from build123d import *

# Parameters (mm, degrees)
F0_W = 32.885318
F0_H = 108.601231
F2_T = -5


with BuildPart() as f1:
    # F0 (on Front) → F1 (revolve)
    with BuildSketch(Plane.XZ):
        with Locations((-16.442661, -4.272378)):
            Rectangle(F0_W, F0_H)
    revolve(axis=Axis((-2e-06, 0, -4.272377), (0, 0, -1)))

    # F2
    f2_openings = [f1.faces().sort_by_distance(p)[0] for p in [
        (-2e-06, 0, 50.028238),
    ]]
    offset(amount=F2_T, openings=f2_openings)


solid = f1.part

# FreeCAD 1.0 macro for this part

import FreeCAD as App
import Part
import Sketcher

V = App.Vector


def faces_at(feature, points):
    """Names of the faces that lie closest to the given points."""
    faces = feature.Shape.Faces
    near = lambda p: min(range(len(faces)), key=lambda i: faces[i].distToShape(Part.Vertex(*p))[0])
    return sorted({f"Face{near(p) + 1}" for p in points})


def add_polygon(sketch, points):
    """Adds a closed chain of lines whose ends are joined by coincident constraints."""
    first, n = sketch.GeometryCount, len(points)
    for a, b in zip(points, points[1:] + points[:1]):
        sketch.addGeometry(Part.LineSegment(App.Vector(*a, 0), App.Vector(*b, 0)), False)
    for i in range(n):
        sketch.addConstraint(Sketcher.Constraint("Coincident", first + i, 2, first + (i + 1) % n, 1))

doc = App.newDocument("Part")
body = doc.addObject("PartDesign::Body", "Body")

# Sketch on XZ plane
sketch1 = body.newObject("Sketcher::SketchObject", "Sketch")
sketch1.AttachmentSupport = (doc.getObject("XZ_Plane"), [""])
sketch1.MapMode = "FlatFace"
add_polygon(sketch1, [(-33, 50), (-33, -59), (0, -59), (0, 50)])  # lines 0-3
sketch1.addGeometry(Part.LineSegment(V(0, 50, 0), V(0, -59, 0)), True)  # axis
sketch1.addConstraint([
    Sketcher.Constraint("Vertical", 0),
    Sketcher.Constraint("Horizontal", 1),
    Sketcher.Constraint("Vertical", 2),
    Sketcher.Constraint("Horizontal", 3),
    Sketcher.Constraint("Vertical", 4),
    Sketcher.Constraint("Coincident", 4, 1, 2, 2),
    Sketcher.Constraint("Horizontal", 0, 2, 4, 2),
    Sketcher.Constraint("DistanceY", 0, 2, 0, 1, 108.601231),
    Sketcher.Constraint("DistanceX", 1, 1, 1, 2, 32.885318),
    Sketcher.Constraint("DistanceX", 0, 2, -1, 1, 32.88532),
    Sketcher.Constraint("DistanceY", 0, 2, -1, 1, 58.572994),
])
revolution = body.newObject("PartDesign::Revolution", "Revolution")
revolution.Profile = sketch1
revolution.ReferenceAxis = (sketch1, ["Axis0"])
revolution.Angle = 360
doc.recompute()

thickness = body.newObject("PartDesign::Thickness", "Thickness")
thickness.Base = (revolution, faces_at(revolution, [(0, 0, 50.028)]))
thickness.Value = 5
thickness.Reversed = True
thickness.Join = "Arc"

doc.recompute()
